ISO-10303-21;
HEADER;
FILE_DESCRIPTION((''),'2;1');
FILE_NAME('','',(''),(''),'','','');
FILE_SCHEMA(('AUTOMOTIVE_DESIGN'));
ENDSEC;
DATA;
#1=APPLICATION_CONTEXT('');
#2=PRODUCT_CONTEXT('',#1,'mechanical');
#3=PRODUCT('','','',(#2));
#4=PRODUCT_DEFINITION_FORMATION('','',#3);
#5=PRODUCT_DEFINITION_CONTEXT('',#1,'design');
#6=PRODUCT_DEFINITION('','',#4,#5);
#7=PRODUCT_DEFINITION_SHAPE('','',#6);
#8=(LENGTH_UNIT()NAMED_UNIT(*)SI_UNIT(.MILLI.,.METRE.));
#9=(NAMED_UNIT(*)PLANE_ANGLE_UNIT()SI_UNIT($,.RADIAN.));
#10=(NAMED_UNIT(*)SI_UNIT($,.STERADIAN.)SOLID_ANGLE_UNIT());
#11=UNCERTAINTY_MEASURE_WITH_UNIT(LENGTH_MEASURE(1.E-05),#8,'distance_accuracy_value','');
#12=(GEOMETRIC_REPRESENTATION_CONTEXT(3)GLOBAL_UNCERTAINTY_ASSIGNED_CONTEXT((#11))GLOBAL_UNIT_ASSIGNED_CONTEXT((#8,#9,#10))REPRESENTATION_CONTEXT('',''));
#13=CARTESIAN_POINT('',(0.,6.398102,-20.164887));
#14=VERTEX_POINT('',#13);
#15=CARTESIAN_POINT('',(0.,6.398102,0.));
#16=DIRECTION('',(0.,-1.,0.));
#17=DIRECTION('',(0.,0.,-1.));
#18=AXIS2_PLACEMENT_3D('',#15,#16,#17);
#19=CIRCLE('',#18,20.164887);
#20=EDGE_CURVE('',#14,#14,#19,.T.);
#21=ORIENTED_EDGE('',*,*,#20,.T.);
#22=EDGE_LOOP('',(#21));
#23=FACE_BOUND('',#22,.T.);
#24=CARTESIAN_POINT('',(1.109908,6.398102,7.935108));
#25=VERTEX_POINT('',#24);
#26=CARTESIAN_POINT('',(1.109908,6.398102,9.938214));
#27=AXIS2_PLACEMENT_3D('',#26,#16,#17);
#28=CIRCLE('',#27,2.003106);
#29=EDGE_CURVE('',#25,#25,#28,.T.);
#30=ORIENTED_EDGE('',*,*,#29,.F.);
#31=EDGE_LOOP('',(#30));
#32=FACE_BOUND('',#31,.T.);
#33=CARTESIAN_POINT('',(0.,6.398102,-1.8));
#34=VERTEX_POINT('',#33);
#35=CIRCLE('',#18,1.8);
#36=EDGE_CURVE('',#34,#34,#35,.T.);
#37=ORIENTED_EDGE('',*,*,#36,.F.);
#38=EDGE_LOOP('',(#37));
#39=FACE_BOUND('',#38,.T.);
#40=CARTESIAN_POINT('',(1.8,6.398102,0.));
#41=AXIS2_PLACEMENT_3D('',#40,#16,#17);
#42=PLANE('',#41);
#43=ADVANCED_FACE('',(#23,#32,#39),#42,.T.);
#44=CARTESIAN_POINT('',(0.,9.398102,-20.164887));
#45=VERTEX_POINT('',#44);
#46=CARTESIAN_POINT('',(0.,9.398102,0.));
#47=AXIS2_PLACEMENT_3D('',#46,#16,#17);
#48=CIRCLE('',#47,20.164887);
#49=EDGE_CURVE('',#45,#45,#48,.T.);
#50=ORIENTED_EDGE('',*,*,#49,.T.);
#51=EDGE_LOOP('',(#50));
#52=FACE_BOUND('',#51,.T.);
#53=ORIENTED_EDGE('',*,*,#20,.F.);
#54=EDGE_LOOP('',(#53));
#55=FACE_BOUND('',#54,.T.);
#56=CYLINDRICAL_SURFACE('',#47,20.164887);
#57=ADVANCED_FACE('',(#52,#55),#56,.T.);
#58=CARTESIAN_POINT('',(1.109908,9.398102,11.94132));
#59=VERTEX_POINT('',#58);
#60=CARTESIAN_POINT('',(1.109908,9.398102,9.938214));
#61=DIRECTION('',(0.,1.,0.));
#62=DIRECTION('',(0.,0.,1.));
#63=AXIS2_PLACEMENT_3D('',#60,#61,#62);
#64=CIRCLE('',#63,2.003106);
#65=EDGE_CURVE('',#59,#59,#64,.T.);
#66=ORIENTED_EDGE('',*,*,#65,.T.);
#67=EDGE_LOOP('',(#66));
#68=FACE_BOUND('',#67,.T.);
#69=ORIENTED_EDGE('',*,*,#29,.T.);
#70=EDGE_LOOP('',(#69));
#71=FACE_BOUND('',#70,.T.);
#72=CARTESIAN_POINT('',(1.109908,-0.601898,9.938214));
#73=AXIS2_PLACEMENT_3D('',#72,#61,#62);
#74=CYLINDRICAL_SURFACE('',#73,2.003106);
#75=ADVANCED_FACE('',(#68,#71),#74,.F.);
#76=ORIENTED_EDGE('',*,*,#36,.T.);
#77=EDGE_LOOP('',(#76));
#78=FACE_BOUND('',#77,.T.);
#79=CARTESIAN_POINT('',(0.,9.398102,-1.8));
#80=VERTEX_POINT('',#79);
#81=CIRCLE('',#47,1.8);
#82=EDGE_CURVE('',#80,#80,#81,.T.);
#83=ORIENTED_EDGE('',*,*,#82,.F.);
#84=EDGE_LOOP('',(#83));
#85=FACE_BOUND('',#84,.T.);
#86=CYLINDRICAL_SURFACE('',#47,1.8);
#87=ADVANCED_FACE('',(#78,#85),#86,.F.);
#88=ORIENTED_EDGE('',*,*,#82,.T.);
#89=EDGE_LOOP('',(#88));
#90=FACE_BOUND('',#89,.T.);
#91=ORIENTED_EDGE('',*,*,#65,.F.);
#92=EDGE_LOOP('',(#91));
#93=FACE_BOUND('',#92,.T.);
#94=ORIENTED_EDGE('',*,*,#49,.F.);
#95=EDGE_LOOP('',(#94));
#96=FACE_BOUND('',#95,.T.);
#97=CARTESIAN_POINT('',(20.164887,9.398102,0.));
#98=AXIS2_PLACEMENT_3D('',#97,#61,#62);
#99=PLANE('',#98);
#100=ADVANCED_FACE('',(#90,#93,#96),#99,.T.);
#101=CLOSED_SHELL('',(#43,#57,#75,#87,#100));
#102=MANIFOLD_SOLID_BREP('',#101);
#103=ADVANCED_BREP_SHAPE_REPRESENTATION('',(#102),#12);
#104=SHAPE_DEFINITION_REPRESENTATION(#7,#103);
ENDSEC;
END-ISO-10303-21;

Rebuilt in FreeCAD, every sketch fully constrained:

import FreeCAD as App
import Part
import Sketcher

V = App.Vector


def add_polygon(sketch, points):
    """Adds a closed chain of lines whose ends are joined by coincident constraints."""
    first, n = sketch.GeometryCount, len(points)
    for a, b in zip(points, points[1:] + points[:1]):
        sketch.addGeometry(Part.LineSegment(App.Vector(*a, 0), App.Vector(*b, 0)), False)
    for i in range(n):
        sketch.addConstraint(Sketcher.Constraint("Coincident", first + i, 2, first + (i + 1) % n, 1))

doc = App.newDocument("Part")
body = doc.addObject("PartDesign::Body", "Body")

# Sketch on XY plane
sketch1 = doc.addObject("Sketcher::SketchObject", "Sketch")
body.addObject(sketch1)
sketch1.AttachmentSupport = (doc.XY_Plane, [""])
sketch1.MapMode = "FlatFace"
add_polygon(sketch1, [(1.8, 9.398102), (1.8, 6.398102), (20.164887, 6.398102), (20.164887, 9.398102)])  # lines 0-3
sketch1.addConstraint(Sketcher.Constraint("Vertical", 0))
sketch1.addConstraint(Sketcher.Constraint("Horizontal", 1))
sketch1.addConstraint(Sketcher.Constraint("Vertical", 2))
sketch1.addConstraint(Sketcher.Constraint("Horizontal", 3))
sketch1.addConstraint(Sketcher.Constraint("DistanceY", 0, 2, 0, 1, 3.0))
sketch1.addConstraint(Sketcher.Constraint("DistanceX", -1, 1, 0, 2, 1.8))
sketch1.addConstraint(Sketcher.Constraint("DistanceY", -1, 1, 0, 2, 6.398102))
sketch1.addConstraint(Sketcher.Constraint("DistanceX", 1, 1, 1, 2, 18.364887))
revolution = doc.addObject("PartDesign::Revolution", "Revolution")
body.addObject(revolution)
revolution.Profile = sketch1
revolution.ReferenceAxis = (sketch1, ["V_Axis"])
revolution.Angle = 360

# Sketch on XZ plane
sketch2 = doc.addObject("Sketcher::SketchObject", "Sketch001")
body.addObject(sketch2)
sketch2.AttachmentSupport = (doc.XZ_Plane, [""])
sketch2.MapMode = "FlatFace"
sketch2.AttachmentOffset = App.Placement(V(0, 0, -9.398102), App.Rotation())
sketch2.addGeometry(Part.Circle(V(1.109908, 9.938214, 0), V(0, 0, 1), 2.003106), False)
sketch2.addConstraint(Sketcher.Constraint("Diameter", 0, 4.006212))
sketch2.addConstraint(Sketcher.Constraint("DistanceX", -1, 1, 0, 3, 1.109908))
sketch2.addConstraint(Sketcher.Constraint("DistanceY", -1, 1, 0, 3, 9.938214))
pocket1 = doc.addObject("PartDesign::Pocket", "Pocket")
body.addObject(pocket1)
pocket1.Profile = sketch2
pocket1.Length = 10
pocket1.Reversed = True

doc.recompute()
